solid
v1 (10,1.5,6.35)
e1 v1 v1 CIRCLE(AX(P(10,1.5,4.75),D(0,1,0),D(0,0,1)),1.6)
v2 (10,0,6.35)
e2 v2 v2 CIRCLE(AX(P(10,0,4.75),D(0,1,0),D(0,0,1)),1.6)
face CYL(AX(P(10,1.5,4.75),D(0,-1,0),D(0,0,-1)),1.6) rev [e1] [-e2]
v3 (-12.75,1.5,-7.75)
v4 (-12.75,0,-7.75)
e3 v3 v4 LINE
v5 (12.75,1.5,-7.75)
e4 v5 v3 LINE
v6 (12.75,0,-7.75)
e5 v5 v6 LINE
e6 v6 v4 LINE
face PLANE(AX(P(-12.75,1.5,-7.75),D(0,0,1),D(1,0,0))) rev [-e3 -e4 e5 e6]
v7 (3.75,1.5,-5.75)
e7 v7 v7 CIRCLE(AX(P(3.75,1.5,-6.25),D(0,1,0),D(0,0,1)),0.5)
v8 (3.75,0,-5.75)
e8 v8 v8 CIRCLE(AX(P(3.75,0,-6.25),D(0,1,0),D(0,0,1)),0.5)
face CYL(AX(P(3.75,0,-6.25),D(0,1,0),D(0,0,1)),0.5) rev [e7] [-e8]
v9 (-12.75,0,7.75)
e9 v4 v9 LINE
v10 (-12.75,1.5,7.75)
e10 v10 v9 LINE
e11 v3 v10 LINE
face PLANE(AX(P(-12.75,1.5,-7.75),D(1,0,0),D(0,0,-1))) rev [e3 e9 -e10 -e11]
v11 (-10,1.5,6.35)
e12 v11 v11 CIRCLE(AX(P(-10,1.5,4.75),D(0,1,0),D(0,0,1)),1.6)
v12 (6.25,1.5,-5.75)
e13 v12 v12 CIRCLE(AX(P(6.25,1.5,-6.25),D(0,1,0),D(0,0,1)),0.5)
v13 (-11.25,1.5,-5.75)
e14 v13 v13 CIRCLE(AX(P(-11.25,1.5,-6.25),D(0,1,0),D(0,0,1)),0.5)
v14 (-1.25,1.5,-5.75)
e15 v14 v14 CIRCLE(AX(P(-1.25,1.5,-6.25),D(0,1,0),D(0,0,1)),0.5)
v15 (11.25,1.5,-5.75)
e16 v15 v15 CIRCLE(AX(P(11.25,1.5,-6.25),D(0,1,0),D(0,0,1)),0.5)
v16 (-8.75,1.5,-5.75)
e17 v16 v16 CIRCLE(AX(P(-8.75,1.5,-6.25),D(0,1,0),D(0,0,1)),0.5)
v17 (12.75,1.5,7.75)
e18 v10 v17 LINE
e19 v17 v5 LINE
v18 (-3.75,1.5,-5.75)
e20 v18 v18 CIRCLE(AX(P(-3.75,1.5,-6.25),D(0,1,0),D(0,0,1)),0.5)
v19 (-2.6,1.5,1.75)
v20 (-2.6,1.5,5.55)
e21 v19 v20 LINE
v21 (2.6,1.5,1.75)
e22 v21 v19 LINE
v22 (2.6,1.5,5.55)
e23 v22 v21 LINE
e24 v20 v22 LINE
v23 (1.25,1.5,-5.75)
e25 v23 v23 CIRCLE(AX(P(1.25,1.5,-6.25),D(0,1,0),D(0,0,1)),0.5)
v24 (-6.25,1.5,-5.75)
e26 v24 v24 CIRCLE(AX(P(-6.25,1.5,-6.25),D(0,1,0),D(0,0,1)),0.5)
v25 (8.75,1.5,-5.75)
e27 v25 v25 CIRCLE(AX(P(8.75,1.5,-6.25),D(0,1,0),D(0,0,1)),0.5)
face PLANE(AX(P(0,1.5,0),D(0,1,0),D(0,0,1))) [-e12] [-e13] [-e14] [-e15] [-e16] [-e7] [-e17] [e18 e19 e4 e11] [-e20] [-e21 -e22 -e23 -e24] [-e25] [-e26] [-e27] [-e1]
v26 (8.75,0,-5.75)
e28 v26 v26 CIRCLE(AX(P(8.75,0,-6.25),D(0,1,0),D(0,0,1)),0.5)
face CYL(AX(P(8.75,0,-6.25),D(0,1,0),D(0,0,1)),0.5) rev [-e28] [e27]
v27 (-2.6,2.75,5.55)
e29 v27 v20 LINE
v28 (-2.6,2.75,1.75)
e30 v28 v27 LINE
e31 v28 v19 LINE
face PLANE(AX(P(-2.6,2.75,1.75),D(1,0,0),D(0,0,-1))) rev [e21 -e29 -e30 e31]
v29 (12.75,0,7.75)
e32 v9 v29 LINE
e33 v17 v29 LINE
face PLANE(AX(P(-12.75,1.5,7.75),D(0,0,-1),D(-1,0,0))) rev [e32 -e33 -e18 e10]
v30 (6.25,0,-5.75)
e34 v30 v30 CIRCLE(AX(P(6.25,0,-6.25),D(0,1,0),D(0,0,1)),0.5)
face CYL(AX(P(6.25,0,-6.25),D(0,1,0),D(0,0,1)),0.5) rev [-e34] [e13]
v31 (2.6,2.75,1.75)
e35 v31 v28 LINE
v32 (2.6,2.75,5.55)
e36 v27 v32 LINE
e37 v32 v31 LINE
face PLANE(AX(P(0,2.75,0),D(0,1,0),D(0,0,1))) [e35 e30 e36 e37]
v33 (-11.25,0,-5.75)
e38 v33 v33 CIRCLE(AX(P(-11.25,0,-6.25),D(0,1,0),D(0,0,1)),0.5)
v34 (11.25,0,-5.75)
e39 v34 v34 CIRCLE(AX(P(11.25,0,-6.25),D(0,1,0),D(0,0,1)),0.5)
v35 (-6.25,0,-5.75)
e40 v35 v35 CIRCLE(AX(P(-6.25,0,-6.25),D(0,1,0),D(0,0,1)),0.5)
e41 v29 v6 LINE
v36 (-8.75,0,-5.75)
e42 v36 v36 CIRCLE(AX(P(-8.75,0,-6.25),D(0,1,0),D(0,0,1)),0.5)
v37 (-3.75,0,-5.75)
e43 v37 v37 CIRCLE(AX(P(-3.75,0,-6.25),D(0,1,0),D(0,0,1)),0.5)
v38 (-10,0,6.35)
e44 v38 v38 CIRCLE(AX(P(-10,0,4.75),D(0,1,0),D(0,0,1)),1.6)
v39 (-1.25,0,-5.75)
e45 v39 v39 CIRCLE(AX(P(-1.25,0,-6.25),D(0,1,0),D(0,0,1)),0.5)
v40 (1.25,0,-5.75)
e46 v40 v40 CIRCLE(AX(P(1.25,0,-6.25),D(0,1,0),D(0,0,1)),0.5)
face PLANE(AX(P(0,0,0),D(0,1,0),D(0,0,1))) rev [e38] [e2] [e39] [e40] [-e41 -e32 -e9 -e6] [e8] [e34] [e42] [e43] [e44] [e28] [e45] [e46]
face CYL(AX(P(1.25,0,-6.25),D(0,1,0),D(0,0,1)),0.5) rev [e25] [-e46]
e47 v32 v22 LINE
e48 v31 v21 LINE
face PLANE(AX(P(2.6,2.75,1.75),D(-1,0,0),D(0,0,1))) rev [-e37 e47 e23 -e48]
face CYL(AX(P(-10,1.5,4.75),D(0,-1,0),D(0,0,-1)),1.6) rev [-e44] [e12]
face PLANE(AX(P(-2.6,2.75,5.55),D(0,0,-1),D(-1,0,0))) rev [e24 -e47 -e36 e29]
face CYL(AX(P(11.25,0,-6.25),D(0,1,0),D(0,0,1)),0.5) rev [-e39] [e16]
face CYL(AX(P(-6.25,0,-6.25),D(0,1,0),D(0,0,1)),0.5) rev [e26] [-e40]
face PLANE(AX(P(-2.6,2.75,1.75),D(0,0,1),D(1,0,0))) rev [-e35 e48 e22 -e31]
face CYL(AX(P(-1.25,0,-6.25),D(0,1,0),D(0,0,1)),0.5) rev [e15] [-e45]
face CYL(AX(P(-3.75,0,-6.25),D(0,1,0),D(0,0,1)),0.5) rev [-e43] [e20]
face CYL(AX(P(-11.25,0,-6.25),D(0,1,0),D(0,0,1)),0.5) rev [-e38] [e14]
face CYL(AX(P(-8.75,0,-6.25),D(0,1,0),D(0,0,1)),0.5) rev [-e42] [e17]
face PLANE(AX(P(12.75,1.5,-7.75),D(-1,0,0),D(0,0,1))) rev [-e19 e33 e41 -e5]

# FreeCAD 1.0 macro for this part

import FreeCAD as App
import Part
import Sketcher
Q = App.Units.Quantity

doc = App.newDocument("Part")
body = doc.addObject("PartDesign::Body", "Body")

sketch1 = body.newObject("Sketcher::SketchObject", "Sketch")
sketch1.AttachmentSupport = (doc.getObject("XZ_Plane"), [""])
sketch1.MapMode = "FlatFace"
sketch1.addGeometry([
    Part.LineSegment(App.Vector(-12.8, -7.8, 0), App.Vector(-12.8, 7.8, 0)),
    Part.LineSegment(App.Vector(-12.8, 7.8, 0), App.Vector(12.8, 7.8, 0)),
    Part.LineSegment(App.Vector(12.8, 7.8, 0), App.Vector(12.8, -7.8, 0)),
    Part.LineSegment(App.Vector(12.8, -7.8, 0), App.Vector(-12.8, -7.8, 0)),
    Part.Circle(App.Vector(-10, 4.8, 0), App.Vector(0, 0, 1), 1.6),
    Part.Circle(App.Vector(10, 4.8, 0), App.Vector(0, 0, 1), 1.6),
], False)
sketch1.addConstraint([
    Sketcher.Constraint("Coincident", 0, 2, 1, 1),
    Sketcher.Constraint("Coincident", 1, 2, 2, 1),
    Sketcher.Constraint("Coincident", 2, 2, 3, 1),
    Sketcher.Constraint("Coincident", 3, 2, 0, 1),
    Sketcher.Constraint("Vertical", 0),
    Sketcher.Constraint("Horizontal", 1),
    Sketcher.Constraint("Vertical", 2),
    Sketcher.Constraint("Horizontal", 3),
    Sketcher.Constraint("Equal", 4, 5),
    Sketcher.Constraint("Symmetric", 0, 2, 2, 2, -1, 1),
    Sketcher.Constraint("Symmetric", 4, 3, 5, 3, -2),
    Sketcher.Constraint("Diameter", 4, Q("3.2 mm")),
    Sketcher.Constraint("DistanceX", 1, 1, 1, 2, Q("25.5 mm")),
    Sketcher.Constraint("DistanceY", 0, 1, 0, 2, Q("15.5 mm")),
    Sketcher.Constraint("DistanceX", 4, 3, -1, 1, Q("10 mm")),
    Sketcher.Constraint("DistanceY", 4, 3, 0, 2, Q("3 mm")),
])
pad1 = body.newObject("PartDesign::Pad", "Pad")
pad1.Profile = sketch1
pad1.Length = 1.5
pad1.Reversed = True

sketch2 = body.newObject("Sketcher::SketchObject", "Sketch001")
sketch2.AttachmentSupport = (doc.getObject("XZ_Plane"), [""])
sketch2.MapMode = "FlatFace"
sketch2.AttachmentOffset = App.Placement(App.Vector(0, 0, -1.5), App.Rotation())
sketch2.addGeometry([
    Part.LineSegment(App.Vector(-2.6, 1.8, 0), App.Vector(-2.6, 5.5, 0)),
    Part.LineSegment(App.Vector(-2.6, 5.5, 0), App.Vector(2.6, 5.5, 0)),
    Part.LineSegment(App.Vector(2.6, 5.5, 0), App.Vector(2.6, 1.8, 0)),
    Part.LineSegment(App.Vector(2.6, 1.8, 0), App.Vector(-2.6, 1.8, 0)),
], False)
sketch2.addConstraint([
    Sketcher.Constraint("Coincident", 0, 2, 1, 1),
    Sketcher.Constraint("Coincident", 1, 2, 2, 1),
    Sketcher.Constraint("Coincident", 2, 2, 3, 1),
    Sketcher.Constraint("Coincident", 3, 2, 0, 1),
    Sketcher.Constraint("Vertical", 0),
    Sketcher.Constraint("Horizontal", 1),
    Sketcher.Constraint("Vertical", 2),
    Sketcher.Constraint("Horizontal", 3),
    Sketcher.Constraint("DistanceX", 1, 1, 1, 2, Q("5.2 mm")),
    Sketcher.Constraint("DistanceY", 0, 1, 0, 2, Q("3.8 mm")),
    Sketcher.Constraint("DistanceX", 0, 2, -1, 1, Q("2.6 mm")),
    Sketcher.Constraint("DistanceY", -1, 1, 0, 2, Q("5.55 mm")),
])
pad2 = body.newObject("PartDesign::Pad", "Pad001")
pad2.Profile = sketch2
pad2.Length = 1.25
pad2.Reversed = True

sketch3 = body.newObject("Sketcher::SketchObject", "Sketch002")
sketch3.AttachmentSupport = (doc.getObject("XZ_Plane"), [""])
sketch3.MapMode = "FlatFace"
sketch3.AttachmentOffset = App.Placement(App.Vector(0, 0, -1.5), App.Rotation())
sketch3.addGeometry(Part.Circle(App.Vector(-11.2, -6.2, 0), App.Vector(0, 0, 1), 0.5), False)
sketch3.addConstraint([
    Sketcher.Constraint("Diameter", 0, Q("1 mm")),
    Sketcher.Constraint("DistanceX", 0, 3, -1, 1, Q("11.25 mm")),
    Sketcher.Constraint("DistanceY", 0, 3, -1, 1, Q("6.25 mm")),
])
pocket1 = body.newObject("PartDesign::Pocket", "Pocket")
pocket1.Profile = sketch3
pocket1.Type = "ThroughAll"
pocket1.Reversed = True
doc.recompute()

linearpattern = body.newObject("PartDesign::LinearPattern", "LinearPattern")
linearpattern.Originals = [pocket1]
linearpattern.Direction = (doc.getObject("X_Axis"), [""])
linearpattern.Mode = "offset"
linearpattern.Offset = 2.5
linearpattern.Occurrences = 10
body.Tip = linearpattern

doc.recompute()
